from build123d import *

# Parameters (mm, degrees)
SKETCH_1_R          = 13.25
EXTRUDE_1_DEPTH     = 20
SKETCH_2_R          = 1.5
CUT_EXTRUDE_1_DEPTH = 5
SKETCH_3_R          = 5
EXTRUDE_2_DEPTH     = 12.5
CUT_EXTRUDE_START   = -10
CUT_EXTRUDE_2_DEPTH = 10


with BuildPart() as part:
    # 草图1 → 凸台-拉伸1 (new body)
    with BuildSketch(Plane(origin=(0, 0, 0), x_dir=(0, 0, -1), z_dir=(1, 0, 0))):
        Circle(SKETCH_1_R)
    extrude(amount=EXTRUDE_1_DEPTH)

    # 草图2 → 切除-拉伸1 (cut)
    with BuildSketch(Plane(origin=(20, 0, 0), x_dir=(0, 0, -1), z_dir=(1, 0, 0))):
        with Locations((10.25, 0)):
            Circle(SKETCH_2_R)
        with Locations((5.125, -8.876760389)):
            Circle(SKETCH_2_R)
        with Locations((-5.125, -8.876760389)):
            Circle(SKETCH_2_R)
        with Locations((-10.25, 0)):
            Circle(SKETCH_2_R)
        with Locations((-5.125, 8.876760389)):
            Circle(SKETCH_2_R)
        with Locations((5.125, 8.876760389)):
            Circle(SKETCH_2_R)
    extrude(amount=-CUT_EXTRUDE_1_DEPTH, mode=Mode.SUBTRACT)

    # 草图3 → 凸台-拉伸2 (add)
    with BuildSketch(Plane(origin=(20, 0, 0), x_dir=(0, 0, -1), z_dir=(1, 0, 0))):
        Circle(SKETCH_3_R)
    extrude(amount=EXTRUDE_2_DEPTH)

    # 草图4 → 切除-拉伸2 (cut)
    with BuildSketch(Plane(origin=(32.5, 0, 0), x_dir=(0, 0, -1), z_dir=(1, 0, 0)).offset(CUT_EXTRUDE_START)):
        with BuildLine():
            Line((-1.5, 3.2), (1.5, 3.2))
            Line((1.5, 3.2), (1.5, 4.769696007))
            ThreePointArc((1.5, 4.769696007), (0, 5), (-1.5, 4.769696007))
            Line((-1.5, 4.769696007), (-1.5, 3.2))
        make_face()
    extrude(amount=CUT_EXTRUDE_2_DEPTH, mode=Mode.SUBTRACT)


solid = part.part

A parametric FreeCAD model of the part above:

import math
import FreeCAD as App
import Part
import Sketcher
Q = App.Units.Quantity

doc = App.newDocument("Part")
body = doc.addObject("PartDesign::Body", "Body")

# Sketch on YZ plane
sketch1 = body.newObject("Sketcher::SketchObject", "Sketch")
sketch1.AttachmentSupport = (doc.getObject("YZ_Plane"), [""])
sketch1.MapMode = "FlatFace"
sketch1.addGeometry(Part.Circle(App.Vector(0, 0, 0), App.Vector(0, 0, 1), 13), False)
sketch1.addConstraint([
    Sketcher.Constraint("Coincident", 0, 3, -1, 1),
    Sketcher.Constraint("Diameter", 0, Q("26.5 mm")),
])
pad1 = body.newObject("PartDesign::Pad", "Pad")
pad1.Profile = sketch1
pad1.Length = 20

# Sketch on YZ plane
sketch2 = body.newObject("Sketcher::SketchObject", "Sketch001")
sketch2.AttachmentSupport = (doc.getObject("YZ_Plane"), [""])
sketch2.MapMode = "FlatFace"
sketch2.AttachmentOffset = App.Placement(App.Vector(0, 0, 20), App.Rotation())
sketch2.addGeometry([
    Part.Circle(App.Vector(0, -10.2, 0), App.Vector(0, 0, 1), 1.5),  # 0
    Part.Circle(App.Vector(-8.9, -5.1, 0), App.Vector(0, 0, 1), 1.5),  # 1
    Part.Circle(App.Vector(-8.9, 5.1, 0), App.Vector(0, 0, 1), 1.5),  # 2
    Part.Circle(App.Vector(0, 10.2, 0), App.Vector(0, 0, 1), 1.5),  # 3
    Part.Circle(App.Vector(8.9, 5.1, 0), App.Vector(0, 0, 1), 1.5),  # 4
    Part.Circle(App.Vector(8.9, -5.1, 0), App.Vector(0, 0, 1), 1.5),  # 5
], False)
sketch2.addConstraint([
    Sketcher.Constraint("Equal", 0, 1),
    Sketcher.Constraint("Equal", 1, 2),
    Sketcher.Constraint("Equal", 2, 3),
    Sketcher.Constraint("Equal", 3, 4),
    Sketcher.Constraint("Equal", 4, 5),
    Sketcher.Constraint("Symmetric", 0, 3, 3, 3, -1, 1),
    Sketcher.Constraint("Symmetric", 1, 3, 4, 3, -1, 1),
    Sketcher.Constraint("Symmetric", 2, 3, 5, 3, -1, 1),
    Sketcher.Constraint("Symmetric", 2, 3, 4, 3, -2),
    Sketcher.Constraint("PointOnObject", 0, 3, -2),
    Sketcher.Constraint("Diameter", 0, Q("3 mm")),
    Sketcher.Constraint("DistanceY", 0, 3, 3, 3, Q("20.5 mm")),
    Sketcher.Constraint("DistanceY", 1, 3, 2, 3, Q("10.25 mm")),
    Sketcher.Constraint("DistanceX", 1, 3, -1, 1, Q("8.87676 mm")),
])
pocket1 = body.newObject("PartDesign::Pocket", "Pocket")
pocket1.Profile = sketch2
pocket1.Length = 5

# Sketch on YZ plane
sketch3 = body.newObject("Sketcher::SketchObject", "Sketch002")
sketch3.AttachmentSupport = (doc.getObject("YZ_Plane"), [""])
sketch3.MapMode = "FlatFace"
sketch3.AttachmentOffset = App.Placement(App.Vector(0, 0, 20), App.Rotation())
sketch3.addGeometry(Part.Circle(App.Vector(0, 0, 0), App.Vector(0, 0, 1), 5), False)
sketch3.addConstraint([
    Sketcher.Constraint("Coincident", 0, 3, -1, 1),
    Sketcher.Constraint("Diameter", 0, Q("10 mm")),
])
pad2 = body.newObject("PartDesign::Pad", "Pad001")
pad2.Profile = sketch3
pad2.Length = 12.5

# Sketch on YZ plane
sketch4 = body.newObject("Sketcher::SketchObject", "Sketch003")
sketch4.AttachmentSupport = (doc.getObject("YZ_Plane"), [""])
sketch4.MapMode = "FlatFace"
sketch4.AttachmentOffset = App.Placement(App.Vector(0, 0, 22.5), App.Rotation())
sketch4.addGeometry([
    Part.LineSegment(App.Vector(3.2, 1.5, 0), App.Vector(3.2, -1.5, 0)),
    Part.LineSegment(App.Vector(3.2, -1.5, 0), App.Vector(4.8, -1.5, 0)),
    Part.ArcOfCircle(Part.Circle(App.Vector(0, 0, 0), App.Vector(0, 0, 1), 5), math.radians(-17), math.radians(17)),
    Part.LineSegment(App.Vector(4.8, 1.5, 0), App.Vector(3.2, 1.5, 0)),
], False)
sketch4.addConstraint([
    Sketcher.Constraint("Coincident", 0, 2, 1, 1),
    Sketcher.Constraint("Coincident", 1, 2, 2, 1),
    Sketcher.Constraint("Coincident", 2, 2, 3, 1),
    Sketcher.Constraint("Coincident", 3, 2, 0, 1),
    Sketcher.Constraint("Vertical", 0),
    Sketcher.Constraint("Horizontal", 1),
    Sketcher.Constraint("Horizontal", 3),
    Sketcher.Constraint("Coincident", 2, 3, -1, 1),
    Sketcher.Constraint("Vertical", 1, 2, 2, 2),
    Sketcher.Constraint("Radius", 2, Q("5 mm")),
    Sketcher.Constraint("DistanceY", 0, 2, 0, 1, Q("3 mm")),
    Sketcher.Constraint("DistanceX", -1, 1, 0, 2, Q("3.2 mm")),
])
pocket2 = body.newObject("PartDesign::Pocket", "Pocket001")
pocket2.Profile = sketch4
pocket2.Length = 10
pocket2.Reversed = True

doc.recompute()
